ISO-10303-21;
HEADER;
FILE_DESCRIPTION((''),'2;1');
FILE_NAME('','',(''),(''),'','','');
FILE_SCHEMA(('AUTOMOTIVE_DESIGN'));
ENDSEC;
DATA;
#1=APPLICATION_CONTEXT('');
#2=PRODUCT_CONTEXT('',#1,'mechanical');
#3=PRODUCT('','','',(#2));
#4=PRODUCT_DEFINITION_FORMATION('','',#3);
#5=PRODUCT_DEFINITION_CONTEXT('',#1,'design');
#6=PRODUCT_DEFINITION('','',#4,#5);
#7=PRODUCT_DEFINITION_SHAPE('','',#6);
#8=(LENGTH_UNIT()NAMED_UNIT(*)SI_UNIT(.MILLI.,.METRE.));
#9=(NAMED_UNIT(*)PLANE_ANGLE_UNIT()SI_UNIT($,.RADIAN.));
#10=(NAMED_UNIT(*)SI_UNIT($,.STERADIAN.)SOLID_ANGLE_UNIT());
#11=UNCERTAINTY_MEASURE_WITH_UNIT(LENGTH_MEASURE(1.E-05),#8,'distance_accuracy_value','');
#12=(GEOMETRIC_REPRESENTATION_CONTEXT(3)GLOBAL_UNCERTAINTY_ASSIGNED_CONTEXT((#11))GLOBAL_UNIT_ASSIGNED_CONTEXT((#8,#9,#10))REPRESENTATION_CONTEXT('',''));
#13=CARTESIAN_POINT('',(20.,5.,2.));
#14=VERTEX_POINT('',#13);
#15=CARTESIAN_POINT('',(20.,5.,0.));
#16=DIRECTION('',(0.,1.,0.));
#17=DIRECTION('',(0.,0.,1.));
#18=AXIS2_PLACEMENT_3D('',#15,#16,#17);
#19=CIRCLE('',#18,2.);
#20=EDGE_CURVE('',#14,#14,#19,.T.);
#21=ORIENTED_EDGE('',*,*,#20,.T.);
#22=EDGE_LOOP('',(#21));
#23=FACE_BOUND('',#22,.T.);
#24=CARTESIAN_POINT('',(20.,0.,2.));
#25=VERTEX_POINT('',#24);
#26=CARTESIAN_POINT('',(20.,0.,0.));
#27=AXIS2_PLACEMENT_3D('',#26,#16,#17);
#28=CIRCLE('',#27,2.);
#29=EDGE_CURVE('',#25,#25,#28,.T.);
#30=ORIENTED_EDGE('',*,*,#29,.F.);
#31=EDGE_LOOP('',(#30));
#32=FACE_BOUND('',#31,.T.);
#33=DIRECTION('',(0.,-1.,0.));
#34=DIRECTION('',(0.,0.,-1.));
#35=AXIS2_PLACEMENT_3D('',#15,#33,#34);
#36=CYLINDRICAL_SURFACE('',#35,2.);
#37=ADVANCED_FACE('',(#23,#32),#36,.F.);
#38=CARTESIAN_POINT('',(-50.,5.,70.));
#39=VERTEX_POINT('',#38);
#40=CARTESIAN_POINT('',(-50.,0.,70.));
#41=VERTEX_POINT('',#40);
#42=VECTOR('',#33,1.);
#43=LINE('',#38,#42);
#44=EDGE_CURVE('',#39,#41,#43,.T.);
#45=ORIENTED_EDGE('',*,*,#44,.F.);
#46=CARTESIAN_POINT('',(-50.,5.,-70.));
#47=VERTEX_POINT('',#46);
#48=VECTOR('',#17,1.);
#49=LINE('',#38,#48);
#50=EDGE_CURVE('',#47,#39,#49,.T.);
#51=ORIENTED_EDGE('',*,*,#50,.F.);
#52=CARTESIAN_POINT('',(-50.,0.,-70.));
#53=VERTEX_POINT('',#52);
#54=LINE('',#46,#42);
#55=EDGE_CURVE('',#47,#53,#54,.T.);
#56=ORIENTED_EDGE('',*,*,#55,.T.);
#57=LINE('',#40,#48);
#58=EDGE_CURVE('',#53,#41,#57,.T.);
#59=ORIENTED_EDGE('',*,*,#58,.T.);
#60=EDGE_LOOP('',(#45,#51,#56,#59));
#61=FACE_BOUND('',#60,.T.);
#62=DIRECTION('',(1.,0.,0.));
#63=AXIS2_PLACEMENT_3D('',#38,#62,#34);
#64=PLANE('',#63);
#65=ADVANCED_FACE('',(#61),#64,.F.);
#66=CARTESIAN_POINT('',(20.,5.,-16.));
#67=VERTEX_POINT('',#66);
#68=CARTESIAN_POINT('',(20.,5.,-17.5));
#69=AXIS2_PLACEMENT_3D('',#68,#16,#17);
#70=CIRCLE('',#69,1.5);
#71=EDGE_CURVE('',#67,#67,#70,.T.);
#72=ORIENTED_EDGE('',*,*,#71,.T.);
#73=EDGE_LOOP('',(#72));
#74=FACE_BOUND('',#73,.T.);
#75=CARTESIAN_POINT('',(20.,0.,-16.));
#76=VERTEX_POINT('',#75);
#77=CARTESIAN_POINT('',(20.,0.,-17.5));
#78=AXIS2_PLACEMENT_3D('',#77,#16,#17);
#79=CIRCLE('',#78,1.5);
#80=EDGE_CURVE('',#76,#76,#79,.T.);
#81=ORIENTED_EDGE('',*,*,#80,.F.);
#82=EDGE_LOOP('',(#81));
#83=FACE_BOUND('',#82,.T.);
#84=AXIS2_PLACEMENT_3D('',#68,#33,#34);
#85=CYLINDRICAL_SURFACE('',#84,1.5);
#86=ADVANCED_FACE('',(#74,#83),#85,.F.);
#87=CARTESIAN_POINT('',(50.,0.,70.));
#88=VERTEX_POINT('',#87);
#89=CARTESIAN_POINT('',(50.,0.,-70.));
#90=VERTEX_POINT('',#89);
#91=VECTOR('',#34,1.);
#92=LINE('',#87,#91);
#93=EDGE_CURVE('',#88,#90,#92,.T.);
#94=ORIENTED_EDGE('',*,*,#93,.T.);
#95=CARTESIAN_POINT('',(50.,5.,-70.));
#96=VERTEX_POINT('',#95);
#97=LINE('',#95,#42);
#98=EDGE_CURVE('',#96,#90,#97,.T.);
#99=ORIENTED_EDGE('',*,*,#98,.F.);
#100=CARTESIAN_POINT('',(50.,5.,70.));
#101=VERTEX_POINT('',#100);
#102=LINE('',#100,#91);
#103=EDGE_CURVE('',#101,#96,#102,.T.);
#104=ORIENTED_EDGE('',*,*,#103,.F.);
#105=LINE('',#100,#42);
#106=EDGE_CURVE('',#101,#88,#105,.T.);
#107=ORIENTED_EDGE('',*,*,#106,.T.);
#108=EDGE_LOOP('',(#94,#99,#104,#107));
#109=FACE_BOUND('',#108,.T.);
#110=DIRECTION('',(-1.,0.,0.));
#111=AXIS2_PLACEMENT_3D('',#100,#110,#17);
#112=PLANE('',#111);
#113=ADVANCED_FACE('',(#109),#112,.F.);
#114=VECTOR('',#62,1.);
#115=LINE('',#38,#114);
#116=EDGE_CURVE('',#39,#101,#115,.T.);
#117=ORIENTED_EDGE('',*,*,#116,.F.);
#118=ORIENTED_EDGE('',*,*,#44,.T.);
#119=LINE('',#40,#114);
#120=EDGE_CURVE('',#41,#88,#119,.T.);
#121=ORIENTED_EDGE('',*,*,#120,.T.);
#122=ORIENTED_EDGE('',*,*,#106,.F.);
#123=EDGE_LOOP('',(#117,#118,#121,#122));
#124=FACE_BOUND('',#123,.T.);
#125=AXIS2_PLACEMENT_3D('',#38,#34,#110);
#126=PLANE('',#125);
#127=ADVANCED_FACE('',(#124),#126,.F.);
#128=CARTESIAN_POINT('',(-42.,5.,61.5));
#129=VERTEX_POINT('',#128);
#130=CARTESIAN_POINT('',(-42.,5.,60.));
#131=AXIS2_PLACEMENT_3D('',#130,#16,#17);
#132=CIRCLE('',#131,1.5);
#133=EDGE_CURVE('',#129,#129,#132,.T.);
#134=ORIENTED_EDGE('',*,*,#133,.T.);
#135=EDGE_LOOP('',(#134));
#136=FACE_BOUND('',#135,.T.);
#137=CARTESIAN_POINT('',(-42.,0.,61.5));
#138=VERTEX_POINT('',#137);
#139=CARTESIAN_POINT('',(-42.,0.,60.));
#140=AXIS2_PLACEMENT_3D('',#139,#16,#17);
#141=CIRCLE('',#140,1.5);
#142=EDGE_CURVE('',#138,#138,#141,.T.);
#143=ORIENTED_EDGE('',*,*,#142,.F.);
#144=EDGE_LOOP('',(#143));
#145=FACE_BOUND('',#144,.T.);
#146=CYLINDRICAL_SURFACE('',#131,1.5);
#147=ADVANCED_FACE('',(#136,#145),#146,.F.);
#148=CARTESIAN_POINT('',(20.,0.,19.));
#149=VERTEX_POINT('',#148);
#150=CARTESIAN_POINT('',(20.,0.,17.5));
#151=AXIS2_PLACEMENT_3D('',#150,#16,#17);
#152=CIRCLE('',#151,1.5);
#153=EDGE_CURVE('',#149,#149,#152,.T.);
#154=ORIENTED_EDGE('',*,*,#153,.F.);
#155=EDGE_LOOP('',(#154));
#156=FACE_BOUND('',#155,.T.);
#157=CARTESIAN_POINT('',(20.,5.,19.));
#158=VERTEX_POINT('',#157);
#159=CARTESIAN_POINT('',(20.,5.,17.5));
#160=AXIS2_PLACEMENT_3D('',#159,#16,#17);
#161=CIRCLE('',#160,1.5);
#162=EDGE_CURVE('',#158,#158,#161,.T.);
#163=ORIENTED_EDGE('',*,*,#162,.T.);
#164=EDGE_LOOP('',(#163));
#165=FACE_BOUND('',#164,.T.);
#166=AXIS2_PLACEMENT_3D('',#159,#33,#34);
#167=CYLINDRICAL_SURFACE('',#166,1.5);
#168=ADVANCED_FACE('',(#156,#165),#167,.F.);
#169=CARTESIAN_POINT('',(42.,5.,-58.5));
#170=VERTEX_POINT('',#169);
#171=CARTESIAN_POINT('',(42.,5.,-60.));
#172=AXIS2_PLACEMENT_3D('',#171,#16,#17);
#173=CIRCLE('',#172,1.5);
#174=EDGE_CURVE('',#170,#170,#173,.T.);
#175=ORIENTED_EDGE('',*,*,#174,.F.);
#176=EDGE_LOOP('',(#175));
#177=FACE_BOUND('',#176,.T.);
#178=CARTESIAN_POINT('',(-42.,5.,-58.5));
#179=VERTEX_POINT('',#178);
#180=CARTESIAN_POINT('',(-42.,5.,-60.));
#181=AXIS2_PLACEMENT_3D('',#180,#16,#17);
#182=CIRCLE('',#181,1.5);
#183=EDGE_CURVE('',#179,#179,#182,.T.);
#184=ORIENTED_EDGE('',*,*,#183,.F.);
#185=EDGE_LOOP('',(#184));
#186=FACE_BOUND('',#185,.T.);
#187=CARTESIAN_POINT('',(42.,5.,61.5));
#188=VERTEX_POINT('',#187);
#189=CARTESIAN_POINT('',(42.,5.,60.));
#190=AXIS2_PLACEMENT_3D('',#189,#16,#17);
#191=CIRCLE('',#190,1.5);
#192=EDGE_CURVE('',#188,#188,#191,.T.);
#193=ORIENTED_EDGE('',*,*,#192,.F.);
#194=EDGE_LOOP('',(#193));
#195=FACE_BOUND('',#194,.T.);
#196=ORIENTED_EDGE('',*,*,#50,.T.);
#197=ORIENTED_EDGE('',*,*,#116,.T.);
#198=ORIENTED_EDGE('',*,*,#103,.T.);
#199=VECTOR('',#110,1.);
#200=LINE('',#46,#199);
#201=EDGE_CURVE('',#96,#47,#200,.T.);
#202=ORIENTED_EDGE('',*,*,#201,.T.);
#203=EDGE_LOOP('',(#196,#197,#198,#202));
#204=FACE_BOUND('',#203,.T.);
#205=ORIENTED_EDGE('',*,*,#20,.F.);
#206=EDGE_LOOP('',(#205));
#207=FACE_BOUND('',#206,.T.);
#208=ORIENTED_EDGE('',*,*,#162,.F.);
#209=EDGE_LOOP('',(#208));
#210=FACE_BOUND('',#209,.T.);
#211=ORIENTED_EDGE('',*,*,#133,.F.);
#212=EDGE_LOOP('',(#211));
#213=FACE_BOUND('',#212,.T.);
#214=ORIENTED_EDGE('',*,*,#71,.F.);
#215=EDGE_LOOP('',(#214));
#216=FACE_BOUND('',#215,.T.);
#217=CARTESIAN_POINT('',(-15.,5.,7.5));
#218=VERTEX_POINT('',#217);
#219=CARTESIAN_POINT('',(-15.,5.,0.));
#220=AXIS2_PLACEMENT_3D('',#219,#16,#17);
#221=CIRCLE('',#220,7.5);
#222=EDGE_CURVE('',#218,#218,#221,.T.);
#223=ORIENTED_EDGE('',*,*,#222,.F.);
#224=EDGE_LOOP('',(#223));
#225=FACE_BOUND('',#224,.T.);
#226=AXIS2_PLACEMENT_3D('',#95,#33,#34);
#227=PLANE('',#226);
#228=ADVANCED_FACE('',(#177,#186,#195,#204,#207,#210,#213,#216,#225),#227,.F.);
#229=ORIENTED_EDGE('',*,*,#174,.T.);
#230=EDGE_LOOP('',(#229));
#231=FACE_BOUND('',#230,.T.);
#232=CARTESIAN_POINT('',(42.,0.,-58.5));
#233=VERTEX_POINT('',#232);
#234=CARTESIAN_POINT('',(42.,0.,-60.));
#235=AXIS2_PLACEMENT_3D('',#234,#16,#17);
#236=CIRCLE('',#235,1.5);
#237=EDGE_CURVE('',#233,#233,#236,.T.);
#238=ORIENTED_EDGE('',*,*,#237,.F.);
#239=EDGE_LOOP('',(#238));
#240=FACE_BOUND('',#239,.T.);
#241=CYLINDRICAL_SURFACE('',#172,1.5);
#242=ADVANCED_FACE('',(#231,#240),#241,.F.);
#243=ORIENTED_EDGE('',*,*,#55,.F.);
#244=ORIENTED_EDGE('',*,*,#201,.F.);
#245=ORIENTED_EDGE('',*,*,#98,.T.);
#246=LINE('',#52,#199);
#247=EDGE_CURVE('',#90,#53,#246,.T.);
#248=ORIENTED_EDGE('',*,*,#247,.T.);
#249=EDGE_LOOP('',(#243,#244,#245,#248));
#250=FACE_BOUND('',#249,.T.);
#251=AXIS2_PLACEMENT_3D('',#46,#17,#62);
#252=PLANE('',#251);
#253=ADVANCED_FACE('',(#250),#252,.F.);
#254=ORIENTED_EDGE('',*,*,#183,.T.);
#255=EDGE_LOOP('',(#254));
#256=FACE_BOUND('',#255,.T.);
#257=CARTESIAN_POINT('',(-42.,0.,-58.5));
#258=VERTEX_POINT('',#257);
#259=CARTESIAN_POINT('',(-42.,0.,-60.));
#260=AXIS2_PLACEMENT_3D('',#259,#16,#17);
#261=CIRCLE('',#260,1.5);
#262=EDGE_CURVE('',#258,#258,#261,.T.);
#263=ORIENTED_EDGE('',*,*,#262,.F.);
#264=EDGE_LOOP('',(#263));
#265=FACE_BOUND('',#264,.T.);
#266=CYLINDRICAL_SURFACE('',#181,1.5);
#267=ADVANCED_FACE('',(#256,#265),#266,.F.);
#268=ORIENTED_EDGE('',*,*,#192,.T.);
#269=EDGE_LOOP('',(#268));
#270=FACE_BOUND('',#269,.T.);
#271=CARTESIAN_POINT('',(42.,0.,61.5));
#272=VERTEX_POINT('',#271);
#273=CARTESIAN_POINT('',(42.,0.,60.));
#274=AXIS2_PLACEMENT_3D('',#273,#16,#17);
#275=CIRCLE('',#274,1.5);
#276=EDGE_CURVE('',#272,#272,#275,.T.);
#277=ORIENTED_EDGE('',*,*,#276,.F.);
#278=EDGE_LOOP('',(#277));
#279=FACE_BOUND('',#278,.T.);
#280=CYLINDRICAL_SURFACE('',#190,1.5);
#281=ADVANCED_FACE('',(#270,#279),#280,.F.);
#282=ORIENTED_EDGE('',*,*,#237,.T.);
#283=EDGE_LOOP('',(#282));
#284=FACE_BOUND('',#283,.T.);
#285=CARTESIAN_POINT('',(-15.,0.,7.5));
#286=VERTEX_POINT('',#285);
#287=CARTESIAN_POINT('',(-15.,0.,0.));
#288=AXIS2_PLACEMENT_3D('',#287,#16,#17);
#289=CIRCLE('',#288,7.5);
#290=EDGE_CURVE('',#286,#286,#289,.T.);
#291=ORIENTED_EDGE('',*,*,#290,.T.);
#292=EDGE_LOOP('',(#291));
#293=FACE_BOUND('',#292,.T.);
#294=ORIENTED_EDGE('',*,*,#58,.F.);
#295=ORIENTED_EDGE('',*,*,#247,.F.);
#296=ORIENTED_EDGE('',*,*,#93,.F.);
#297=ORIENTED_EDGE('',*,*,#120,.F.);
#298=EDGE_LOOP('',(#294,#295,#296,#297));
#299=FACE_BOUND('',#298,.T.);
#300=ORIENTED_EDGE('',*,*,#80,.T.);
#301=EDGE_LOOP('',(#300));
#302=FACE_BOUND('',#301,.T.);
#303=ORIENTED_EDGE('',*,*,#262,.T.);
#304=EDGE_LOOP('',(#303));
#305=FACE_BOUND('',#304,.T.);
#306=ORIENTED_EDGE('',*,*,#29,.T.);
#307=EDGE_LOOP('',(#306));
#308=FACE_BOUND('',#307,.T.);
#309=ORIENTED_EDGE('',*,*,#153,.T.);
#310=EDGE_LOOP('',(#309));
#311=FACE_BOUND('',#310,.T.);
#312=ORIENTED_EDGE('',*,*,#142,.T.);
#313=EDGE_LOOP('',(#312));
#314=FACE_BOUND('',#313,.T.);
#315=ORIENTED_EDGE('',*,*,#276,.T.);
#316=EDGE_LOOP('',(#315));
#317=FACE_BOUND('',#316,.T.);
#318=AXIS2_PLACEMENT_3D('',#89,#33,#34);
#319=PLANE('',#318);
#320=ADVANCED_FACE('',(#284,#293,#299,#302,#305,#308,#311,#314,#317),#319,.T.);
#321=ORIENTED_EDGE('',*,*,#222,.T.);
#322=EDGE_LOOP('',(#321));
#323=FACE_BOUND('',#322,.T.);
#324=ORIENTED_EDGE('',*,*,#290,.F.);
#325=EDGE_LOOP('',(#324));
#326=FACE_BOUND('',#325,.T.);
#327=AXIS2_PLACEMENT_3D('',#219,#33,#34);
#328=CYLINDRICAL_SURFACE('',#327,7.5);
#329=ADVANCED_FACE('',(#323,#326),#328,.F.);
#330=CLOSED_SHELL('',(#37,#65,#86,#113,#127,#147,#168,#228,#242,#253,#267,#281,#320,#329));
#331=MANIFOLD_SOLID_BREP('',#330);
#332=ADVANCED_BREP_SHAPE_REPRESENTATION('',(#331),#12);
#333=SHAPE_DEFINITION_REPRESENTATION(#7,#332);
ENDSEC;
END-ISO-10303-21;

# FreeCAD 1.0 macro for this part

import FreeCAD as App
import Part
import Sketcher

doc = App.newDocument("Part")
params = doc.addObject("Spreadsheet::Sheet", "Params")
for row, (alias, value) in enumerate([
    ("sketch1_diameter", "3 mm"),
    ("sketch1_diameter2", "15 mm"),
    ("sketch1_diameter3", "4 mm"),
    ("sketch1_width", "100 mm"),
    ("sketch1_height", "140 mm"),
    ("pad1_length", "5 mm"),
    ("sketch2_diameter", "3 mm"),
    ("hole_diameter", "3 mm"),
], start=1):
    params.set(f"A{row}", alias)
    params.set(f"B{row}", "=" + value)
    params.setAlias(f"B{row}", alias)

body = doc.addObject("PartDesign::Body", "Body")

# Sketch on XZ plane
sketch1 = body.newObject("Sketcher::SketchObject", "Sketch")
sketch1.AttachmentSupport = (doc.getObject("XZ_Plane"), [""])
sketch1.MapMode = "FlatFace"
sketch1.addGeometry(Part.LineSegment(App.Vector(-50, -70, 0), App.Vector(-50, 70, 0)), False)
sketch1.addGeometry(Part.LineSegment(App.Vector(-50, 70, 0), App.Vector(50, 70, 0)), False)
sketch1.addGeometry(Part.LineSegment(App.Vector(50, 70, 0), App.Vector(50, -70, 0)), False)
sketch1.addGeometry(Part.LineSegment(App.Vector(50, -70, 0), App.Vector(-50, -70, 0)), False)
sketch1.addGeometry(Part.Circle(App.Vector(20, 17.5, 0), App.Vector(0, 0, 1), 1.5), False)
sketch1.addGeometry(Part.Circle(App.Vector(-15, 0, 0), App.Vector(0, 0, 1), 7.5), False)
sketch1.addGeometry(Part.Circle(App.Vector(20, 0, 0), App.Vector(0, 0, 1), 2), False)
sketch1.addGeometry(Part.Circle(App.Vector(20, -17.5, 0), App.Vector(0, 0, 1), 1.5), False)
sketch1.addConstraint(Sketcher.Constraint("Coincident", 0, 2, 1, 1))
sketch1.addConstraint(Sketcher.Constraint("Coincident", 1, 2, 2, 1))
sketch1.addConstraint(Sketcher.Constraint("Coincident", 2, 2, 3, 1))
sketch1.addConstraint(Sketcher.Constraint("Coincident", 3, 2, 0, 1))
sketch1.addConstraint(Sketcher.Constraint("Vertical", 0))
sketch1.addConstraint(Sketcher.Constraint("Horizontal", 1))
sketch1.addConstraint(Sketcher.Constraint("Vertical", 2))
sketch1.addConstraint(Sketcher.Constraint("Horizontal", 3))
sketch1.addConstraint(Sketcher.Constraint("Equal", 4, 7))
sketch1.addConstraint(Sketcher.Constraint("Symmetric", 0, 2, 2, 2, -1, 1))
sketch1.addConstraint(Sketcher.Constraint("Symmetric", 4, 3, 7, 3, -1))
sketch1.addConstraint(Sketcher.Constraint("PointOnObject", 5, 3, -1))
sketch1.addConstraint(Sketcher.Constraint("PointOnObject", 6, 3, -1))
sketch1.addConstraint(Sketcher.Constraint("Vertical", 4, 3, 6, 3))
sketch1.addConstraint(Sketcher.Constraint("Diameter", 4, 3.0))
sketch1.addConstraint(Sketcher.Constraint("Diameter", 5, 15.0))
sketch1.addConstraint(Sketcher.Constraint("Diameter", 6, 4.0))
sketch1.addConstraint(Sketcher.Constraint("DistanceX", 1, 1, 1, 2, 100.0))
sketch1.addConstraint(Sketcher.Constraint("DistanceY", 0, 1, 0, 2, 140.0))
sketch1.addConstraint(Sketcher.Constraint("DistanceX", -1, 1, 4, 3, 20.0))
sketch1.addConstraint(Sketcher.Constraint("DistanceX", 5, 3, -1, 1, 15.0))
sketch1.addConstraint(Sketcher.Constraint("DistanceY", 7, 3, 4, 3, 35.0))
sketch1.setExpression("Constraints[14]", "Params.sketch1_diameter")
sketch1.setExpression("Constraints[15]", "Params.sketch1_diameter2")
sketch1.setExpression("Constraints[16]", "Params.sketch1_diameter3")
sketch1.setExpression("Constraints[17]", "Params.sketch1_width")
sketch1.setExpression("Constraints[18]", "Params.sketch1_height")
pad1 = body.newObject("PartDesign::Pad", "Pad")
pad1.Profile = sketch1
pad1.setExpression("Length", "Params.pad1_length")
pad1.Reversed = True

# Sketch on XZ plane
sketch2 = body.newObject("Sketcher::SketchObject", "Sketch001")
sketch2.AttachmentSupport = (doc.getObject("XZ_Plane"), [""])
sketch2.MapMode = "FlatFace"
sketch2.AttachmentOffset = App.Placement(App.Vector(0, 0, -5), App.Rotation())
sketch2.addGeometry(Part.Circle(App.Vector(42, 60, 0), App.Vector(0, 0, 1), 1.5), False)
sketch2.addGeometry(Part.Circle(App.Vector(-42, 60, 0), App.Vector(0, 0, 1), 1.5), False)
sketch2.addGeometry(Part.Circle(App.Vector(-42, -60, 0), App.Vector(0, 0, 1), 1.5), False)
sketch2.addGeometry(Part.Circle(App.Vector(42, -60, 0), App.Vector(0, 0, 1), 1.5), False)
sketch2.addConstraint(Sketcher.Constraint("Equal", 0, 1))
sketch2.addConstraint(Sketcher.Constraint("Equal", 1, 2))
sketch2.addConstraint(Sketcher.Constraint("Equal", 2, 3))
sketch2.addConstraint(Sketcher.Constraint("Symmetric", 0, 3, 2, 3, -1, 1))
sketch2.addConstraint(Sketcher.Constraint("Symmetric", 1, 3, 3, 3, -1, 1))
sketch2.addConstraint(Sketcher.Constraint("Symmetric", 0, 3, 1, 3, -2))
sketch2.addConstraint(Sketcher.Constraint("Diameter", 0, 3.0))
sketch2.addConstraint(Sketcher.Constraint("DistanceX", -1, 1, 0, 3, 42.0))
sketch2.addConstraint(Sketcher.Constraint("DistanceY", -1, 1, 0, 3, 60.0))
sketch2.setExpression("Constraints[6]", "Params.sketch2_diameter")
doc.recompute()
hole = body.newObject("PartDesign::Hole", "Hole")
hole.Profile = sketch2
hole.ThreadType = "None"
hole.setExpression("Diameter", "Params.hole_diameter")
hole.DepthType = "ThroughAll"
hole.Reversed = True

doc.recompute()
